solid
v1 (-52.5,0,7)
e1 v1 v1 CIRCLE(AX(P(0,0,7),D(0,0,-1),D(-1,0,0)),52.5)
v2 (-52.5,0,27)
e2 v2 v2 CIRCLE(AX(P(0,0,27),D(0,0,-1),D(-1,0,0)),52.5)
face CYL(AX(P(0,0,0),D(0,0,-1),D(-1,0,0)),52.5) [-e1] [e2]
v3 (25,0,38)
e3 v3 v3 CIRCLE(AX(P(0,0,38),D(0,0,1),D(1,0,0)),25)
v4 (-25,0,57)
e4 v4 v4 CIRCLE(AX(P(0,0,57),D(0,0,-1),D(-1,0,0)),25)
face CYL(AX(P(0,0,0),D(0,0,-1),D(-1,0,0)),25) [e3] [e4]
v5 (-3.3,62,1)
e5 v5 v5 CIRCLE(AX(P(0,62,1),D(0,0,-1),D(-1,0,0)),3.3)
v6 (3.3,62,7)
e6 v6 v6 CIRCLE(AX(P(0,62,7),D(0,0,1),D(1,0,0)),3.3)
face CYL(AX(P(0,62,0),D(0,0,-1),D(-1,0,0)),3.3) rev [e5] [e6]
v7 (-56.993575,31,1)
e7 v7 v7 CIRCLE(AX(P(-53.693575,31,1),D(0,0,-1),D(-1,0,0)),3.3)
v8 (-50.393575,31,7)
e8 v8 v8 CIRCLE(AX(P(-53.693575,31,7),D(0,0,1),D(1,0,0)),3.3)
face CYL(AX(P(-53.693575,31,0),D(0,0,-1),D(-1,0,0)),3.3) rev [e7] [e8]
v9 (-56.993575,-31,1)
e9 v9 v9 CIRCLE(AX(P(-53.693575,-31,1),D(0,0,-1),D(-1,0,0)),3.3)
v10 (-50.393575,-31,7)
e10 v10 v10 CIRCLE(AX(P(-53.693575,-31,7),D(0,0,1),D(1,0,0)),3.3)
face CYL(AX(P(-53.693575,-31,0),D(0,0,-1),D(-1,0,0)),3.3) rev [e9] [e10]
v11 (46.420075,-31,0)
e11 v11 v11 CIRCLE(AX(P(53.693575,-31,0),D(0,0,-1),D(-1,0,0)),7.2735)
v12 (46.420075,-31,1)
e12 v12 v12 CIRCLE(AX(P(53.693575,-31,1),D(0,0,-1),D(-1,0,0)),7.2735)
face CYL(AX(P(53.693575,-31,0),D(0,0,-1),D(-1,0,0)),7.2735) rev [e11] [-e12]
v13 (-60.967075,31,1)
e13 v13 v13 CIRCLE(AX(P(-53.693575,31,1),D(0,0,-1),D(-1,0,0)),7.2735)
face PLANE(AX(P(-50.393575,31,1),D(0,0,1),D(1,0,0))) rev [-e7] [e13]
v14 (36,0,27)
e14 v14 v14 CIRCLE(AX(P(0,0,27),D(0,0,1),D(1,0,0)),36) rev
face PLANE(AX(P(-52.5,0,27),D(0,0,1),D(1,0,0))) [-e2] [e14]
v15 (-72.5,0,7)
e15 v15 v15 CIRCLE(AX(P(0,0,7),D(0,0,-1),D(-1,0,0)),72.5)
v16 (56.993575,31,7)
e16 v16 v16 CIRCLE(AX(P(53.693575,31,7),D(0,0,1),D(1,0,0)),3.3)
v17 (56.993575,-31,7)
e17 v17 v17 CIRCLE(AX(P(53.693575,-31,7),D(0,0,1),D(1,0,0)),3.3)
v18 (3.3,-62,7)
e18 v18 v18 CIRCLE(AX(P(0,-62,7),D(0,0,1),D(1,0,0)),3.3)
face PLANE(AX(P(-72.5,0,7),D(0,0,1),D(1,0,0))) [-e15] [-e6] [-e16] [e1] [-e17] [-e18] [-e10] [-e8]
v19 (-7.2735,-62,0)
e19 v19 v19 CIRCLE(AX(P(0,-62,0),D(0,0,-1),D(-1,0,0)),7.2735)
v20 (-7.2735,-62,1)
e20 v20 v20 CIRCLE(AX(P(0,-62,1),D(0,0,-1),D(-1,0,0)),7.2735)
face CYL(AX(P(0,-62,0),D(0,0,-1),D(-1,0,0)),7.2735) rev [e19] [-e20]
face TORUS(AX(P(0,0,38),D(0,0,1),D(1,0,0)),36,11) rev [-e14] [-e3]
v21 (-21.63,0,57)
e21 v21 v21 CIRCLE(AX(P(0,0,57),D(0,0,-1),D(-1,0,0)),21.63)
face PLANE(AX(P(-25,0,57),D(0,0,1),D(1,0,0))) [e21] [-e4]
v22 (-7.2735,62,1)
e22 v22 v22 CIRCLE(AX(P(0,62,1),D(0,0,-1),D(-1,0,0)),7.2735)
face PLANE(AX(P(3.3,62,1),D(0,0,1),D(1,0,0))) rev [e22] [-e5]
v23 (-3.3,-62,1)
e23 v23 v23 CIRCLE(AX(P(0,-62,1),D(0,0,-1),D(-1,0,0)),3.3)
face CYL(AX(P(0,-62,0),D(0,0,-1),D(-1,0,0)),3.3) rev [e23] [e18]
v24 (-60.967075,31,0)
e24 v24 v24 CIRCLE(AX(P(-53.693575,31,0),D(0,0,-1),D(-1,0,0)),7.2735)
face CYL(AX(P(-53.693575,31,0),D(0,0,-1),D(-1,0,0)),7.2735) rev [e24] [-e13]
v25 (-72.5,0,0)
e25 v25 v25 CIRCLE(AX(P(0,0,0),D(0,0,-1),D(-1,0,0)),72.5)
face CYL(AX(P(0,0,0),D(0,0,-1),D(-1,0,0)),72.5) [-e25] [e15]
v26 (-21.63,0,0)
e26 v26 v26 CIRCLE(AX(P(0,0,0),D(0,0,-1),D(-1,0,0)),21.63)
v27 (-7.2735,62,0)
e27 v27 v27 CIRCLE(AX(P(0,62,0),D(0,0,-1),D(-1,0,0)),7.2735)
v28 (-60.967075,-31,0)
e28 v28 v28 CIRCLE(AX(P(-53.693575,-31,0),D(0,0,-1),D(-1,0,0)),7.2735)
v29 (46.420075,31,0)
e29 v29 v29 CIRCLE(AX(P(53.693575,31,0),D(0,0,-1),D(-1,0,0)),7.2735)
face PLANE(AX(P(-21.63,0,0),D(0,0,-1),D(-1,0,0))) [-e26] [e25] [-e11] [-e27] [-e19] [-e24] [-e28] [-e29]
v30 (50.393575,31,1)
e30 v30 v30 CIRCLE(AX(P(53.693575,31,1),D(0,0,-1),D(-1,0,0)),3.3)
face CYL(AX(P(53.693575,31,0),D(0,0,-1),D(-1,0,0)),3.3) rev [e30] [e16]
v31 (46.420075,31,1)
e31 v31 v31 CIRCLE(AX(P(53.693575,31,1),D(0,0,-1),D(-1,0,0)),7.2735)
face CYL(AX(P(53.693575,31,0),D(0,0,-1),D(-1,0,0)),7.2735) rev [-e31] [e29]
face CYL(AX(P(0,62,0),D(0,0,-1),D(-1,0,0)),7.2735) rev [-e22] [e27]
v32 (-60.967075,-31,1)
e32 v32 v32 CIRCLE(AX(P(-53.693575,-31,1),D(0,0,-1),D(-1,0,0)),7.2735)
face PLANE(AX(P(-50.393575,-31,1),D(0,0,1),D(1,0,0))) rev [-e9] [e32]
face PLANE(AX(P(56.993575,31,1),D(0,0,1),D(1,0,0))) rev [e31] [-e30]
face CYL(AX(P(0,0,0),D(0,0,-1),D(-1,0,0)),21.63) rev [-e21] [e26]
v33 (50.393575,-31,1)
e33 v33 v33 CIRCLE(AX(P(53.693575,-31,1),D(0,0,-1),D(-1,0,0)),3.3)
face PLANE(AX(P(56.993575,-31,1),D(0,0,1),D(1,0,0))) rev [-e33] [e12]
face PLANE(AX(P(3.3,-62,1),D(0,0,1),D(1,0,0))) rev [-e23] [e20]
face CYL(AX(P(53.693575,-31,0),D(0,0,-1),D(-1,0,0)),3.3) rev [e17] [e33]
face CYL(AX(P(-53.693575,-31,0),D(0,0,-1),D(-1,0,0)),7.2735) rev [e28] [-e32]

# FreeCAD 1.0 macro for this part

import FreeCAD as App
import Part
import Sketcher


def edges_at(feature, points):
    """Names of the edges that pass closest to the given points."""
    edges = feature.Shape.Edges
    near = lambda p: min(range(len(edges)), key=lambda i: edges[i].distToShape(Part.Vertex(*p))[0])
    return sorted({f"Edge{near(p) + 1}" for p in points})

doc = App.newDocument("Part")
body = doc.addObject("PartDesign::Body", "Body")

sketch1 = body.newObject("Sketcher::SketchObject", "Sketch")
sketch1.AttachmentSupport = (doc.getObject("XZ_Plane"), [""])
sketch1.MapMode = "FlatFace"
sketch1.addGeometry(Part.LineSegment(App.Vector(-21.6, 0, 0), App.Vector(-72.5, 0, 0)), False)
sketch1.addGeometry(Part.LineSegment(App.Vector(-72.5, 0, 0), App.Vector(-72.5, 7, 0)), False)
sketch1.addGeometry(Part.LineSegment(App.Vector(-72.5, 7, 0), App.Vector(-52.5, 7, 0)), False)
sketch1.addGeometry(Part.LineSegment(App.Vector(-52.5, 7, 0), App.Vector(-52.5, 27, 0)), False)
sketch1.addGeometry(Part.LineSegment(App.Vector(-52.5, 27, 0), App.Vector(-25, 27, 0)), False)
sketch1.addGeometry(Part.LineSegment(App.Vector(-25, 27, 0), App.Vector(-25, 57, 0)), False)
sketch1.addGeometry(Part.LineSegment(App.Vector(-25, 57, 0), App.Vector(-21.6, 57, 0)), False)
sketch1.addGeometry(Part.LineSegment(App.Vector(-21.6, 57, 0), App.Vector(-21.6, 0, 0)), False)
sketch1.addConstraint(Sketcher.Constraint("Coincident", 0, 2, 1, 1))
sketch1.addConstraint(Sketcher.Constraint("Coincident", 1, 2, 2, 1))
sketch1.addConstraint(Sketcher.Constraint("Coincident", 2, 2, 3, 1))
sketch1.addConstraint(Sketcher.Constraint("Coincident", 3, 2, 4, 1))
sketch1.addConstraint(Sketcher.Constraint("Coincident", 4, 2, 5, 1))
sketch1.addConstraint(Sketcher.Constraint("Coincident", 5, 2, 6, 1))
sketch1.addConstraint(Sketcher.Constraint("Coincident", 6, 2, 7, 1))
sketch1.addConstraint(Sketcher.Constraint("Coincident", 7, 2, 0, 1))
sketch1.addConstraint(Sketcher.Constraint("Horizontal", 0))
sketch1.addConstraint(Sketcher.Constraint("Vertical", 1))
sketch1.addConstraint(Sketcher.Constraint("Horizontal", 2))
sketch1.addConstraint(Sketcher.Constraint("Vertical", 3))
sketch1.addConstraint(Sketcher.Constraint("Horizontal", 4))
sketch1.addConstraint(Sketcher.Constraint("Vertical", 5))
sketch1.addConstraint(Sketcher.Constraint("Horizontal", 6))
sketch1.addConstraint(Sketcher.Constraint("Vertical", 7))
sketch1.addConstraint(Sketcher.Constraint("PointOnObject", 0, 2, -1))
sketch1.addConstraint(Sketcher.Constraint("Equal", 2, 3))
sketch1.addConstraint(Sketcher.Constraint("DistanceX", 2, 1, 2, 2, 20.0))
sketch1.addConstraint(Sketcher.Constraint("DistanceY", 1, 1, 1, 2, 7.0))
sketch1.addConstraint(Sketcher.Constraint("DistanceY", 5, 1, 5, 2, 30.0))
sketch1.addConstraint(Sketcher.Constraint("DistanceX", 4, 1, 4, 2, 27.5))
sketch1.addConstraint(Sketcher.Constraint("DistanceX", 4, 2, -1, 1, 25.0))
sketch1.addConstraint(Sketcher.Constraint("DistanceX", 0, 2, 0, 1, 50.87))
revolution = body.newObject("PartDesign::Revolution", "Revolution")
revolution.Profile = sketch1
revolution.ReferenceAxis = (sketch1, ["V_Axis"])
revolution.Angle = 360
doc.recompute()

fillet = body.newObject("PartDesign::Fillet", "Fillet")
fillet.Base = (revolution, edges_at(revolution, [(25, 0, 27)]))
fillet.Radius = 11

sketch2 = body.newObject("Sketcher::SketchObject", "Sketch001")
sketch2.AttachmentSupport = (doc.getObject("XY_Plane"), [""])
sketch2.MapMode = "FlatFace"
sketch2.addGeometry(Part.Circle(App.Vector(0, 62, 0), App.Vector(0, 0, 1), 3.3), False)
sketch2.addConstraint(Sketcher.Constraint("PointOnObject", 0, 3, -2))
sketch2.addConstraint(Sketcher.Constraint("Diameter", 0, 6.6))
sketch2.addConstraint(Sketcher.Constraint("DistanceY", -1, 1, 0, 3, 62.0))
doc.recompute()
hole = body.newObject("PartDesign::Hole", "Hole")
hole.Profile = sketch2
hole.ThreadType = "None"
hole.Diameter = 6.6
hole.DepthType = "ThroughAll"
hole.HoleCutType = "Counterbore"
hole.HoleCutDiameter = 14.547
hole.HoleCutDepth = 1
hole.Reversed = True
doc.recompute()

polarpattern = body.newObject("PartDesign::PolarPattern", "PolarPattern")
polarpattern.Originals = [hole]
polarpattern.Axis = (doc.getObject("Z_Axis"), [""])
polarpattern.Angle = 360
polarpattern.Occurrences = 6
body.Tip = polarpattern

doc.recompute()
